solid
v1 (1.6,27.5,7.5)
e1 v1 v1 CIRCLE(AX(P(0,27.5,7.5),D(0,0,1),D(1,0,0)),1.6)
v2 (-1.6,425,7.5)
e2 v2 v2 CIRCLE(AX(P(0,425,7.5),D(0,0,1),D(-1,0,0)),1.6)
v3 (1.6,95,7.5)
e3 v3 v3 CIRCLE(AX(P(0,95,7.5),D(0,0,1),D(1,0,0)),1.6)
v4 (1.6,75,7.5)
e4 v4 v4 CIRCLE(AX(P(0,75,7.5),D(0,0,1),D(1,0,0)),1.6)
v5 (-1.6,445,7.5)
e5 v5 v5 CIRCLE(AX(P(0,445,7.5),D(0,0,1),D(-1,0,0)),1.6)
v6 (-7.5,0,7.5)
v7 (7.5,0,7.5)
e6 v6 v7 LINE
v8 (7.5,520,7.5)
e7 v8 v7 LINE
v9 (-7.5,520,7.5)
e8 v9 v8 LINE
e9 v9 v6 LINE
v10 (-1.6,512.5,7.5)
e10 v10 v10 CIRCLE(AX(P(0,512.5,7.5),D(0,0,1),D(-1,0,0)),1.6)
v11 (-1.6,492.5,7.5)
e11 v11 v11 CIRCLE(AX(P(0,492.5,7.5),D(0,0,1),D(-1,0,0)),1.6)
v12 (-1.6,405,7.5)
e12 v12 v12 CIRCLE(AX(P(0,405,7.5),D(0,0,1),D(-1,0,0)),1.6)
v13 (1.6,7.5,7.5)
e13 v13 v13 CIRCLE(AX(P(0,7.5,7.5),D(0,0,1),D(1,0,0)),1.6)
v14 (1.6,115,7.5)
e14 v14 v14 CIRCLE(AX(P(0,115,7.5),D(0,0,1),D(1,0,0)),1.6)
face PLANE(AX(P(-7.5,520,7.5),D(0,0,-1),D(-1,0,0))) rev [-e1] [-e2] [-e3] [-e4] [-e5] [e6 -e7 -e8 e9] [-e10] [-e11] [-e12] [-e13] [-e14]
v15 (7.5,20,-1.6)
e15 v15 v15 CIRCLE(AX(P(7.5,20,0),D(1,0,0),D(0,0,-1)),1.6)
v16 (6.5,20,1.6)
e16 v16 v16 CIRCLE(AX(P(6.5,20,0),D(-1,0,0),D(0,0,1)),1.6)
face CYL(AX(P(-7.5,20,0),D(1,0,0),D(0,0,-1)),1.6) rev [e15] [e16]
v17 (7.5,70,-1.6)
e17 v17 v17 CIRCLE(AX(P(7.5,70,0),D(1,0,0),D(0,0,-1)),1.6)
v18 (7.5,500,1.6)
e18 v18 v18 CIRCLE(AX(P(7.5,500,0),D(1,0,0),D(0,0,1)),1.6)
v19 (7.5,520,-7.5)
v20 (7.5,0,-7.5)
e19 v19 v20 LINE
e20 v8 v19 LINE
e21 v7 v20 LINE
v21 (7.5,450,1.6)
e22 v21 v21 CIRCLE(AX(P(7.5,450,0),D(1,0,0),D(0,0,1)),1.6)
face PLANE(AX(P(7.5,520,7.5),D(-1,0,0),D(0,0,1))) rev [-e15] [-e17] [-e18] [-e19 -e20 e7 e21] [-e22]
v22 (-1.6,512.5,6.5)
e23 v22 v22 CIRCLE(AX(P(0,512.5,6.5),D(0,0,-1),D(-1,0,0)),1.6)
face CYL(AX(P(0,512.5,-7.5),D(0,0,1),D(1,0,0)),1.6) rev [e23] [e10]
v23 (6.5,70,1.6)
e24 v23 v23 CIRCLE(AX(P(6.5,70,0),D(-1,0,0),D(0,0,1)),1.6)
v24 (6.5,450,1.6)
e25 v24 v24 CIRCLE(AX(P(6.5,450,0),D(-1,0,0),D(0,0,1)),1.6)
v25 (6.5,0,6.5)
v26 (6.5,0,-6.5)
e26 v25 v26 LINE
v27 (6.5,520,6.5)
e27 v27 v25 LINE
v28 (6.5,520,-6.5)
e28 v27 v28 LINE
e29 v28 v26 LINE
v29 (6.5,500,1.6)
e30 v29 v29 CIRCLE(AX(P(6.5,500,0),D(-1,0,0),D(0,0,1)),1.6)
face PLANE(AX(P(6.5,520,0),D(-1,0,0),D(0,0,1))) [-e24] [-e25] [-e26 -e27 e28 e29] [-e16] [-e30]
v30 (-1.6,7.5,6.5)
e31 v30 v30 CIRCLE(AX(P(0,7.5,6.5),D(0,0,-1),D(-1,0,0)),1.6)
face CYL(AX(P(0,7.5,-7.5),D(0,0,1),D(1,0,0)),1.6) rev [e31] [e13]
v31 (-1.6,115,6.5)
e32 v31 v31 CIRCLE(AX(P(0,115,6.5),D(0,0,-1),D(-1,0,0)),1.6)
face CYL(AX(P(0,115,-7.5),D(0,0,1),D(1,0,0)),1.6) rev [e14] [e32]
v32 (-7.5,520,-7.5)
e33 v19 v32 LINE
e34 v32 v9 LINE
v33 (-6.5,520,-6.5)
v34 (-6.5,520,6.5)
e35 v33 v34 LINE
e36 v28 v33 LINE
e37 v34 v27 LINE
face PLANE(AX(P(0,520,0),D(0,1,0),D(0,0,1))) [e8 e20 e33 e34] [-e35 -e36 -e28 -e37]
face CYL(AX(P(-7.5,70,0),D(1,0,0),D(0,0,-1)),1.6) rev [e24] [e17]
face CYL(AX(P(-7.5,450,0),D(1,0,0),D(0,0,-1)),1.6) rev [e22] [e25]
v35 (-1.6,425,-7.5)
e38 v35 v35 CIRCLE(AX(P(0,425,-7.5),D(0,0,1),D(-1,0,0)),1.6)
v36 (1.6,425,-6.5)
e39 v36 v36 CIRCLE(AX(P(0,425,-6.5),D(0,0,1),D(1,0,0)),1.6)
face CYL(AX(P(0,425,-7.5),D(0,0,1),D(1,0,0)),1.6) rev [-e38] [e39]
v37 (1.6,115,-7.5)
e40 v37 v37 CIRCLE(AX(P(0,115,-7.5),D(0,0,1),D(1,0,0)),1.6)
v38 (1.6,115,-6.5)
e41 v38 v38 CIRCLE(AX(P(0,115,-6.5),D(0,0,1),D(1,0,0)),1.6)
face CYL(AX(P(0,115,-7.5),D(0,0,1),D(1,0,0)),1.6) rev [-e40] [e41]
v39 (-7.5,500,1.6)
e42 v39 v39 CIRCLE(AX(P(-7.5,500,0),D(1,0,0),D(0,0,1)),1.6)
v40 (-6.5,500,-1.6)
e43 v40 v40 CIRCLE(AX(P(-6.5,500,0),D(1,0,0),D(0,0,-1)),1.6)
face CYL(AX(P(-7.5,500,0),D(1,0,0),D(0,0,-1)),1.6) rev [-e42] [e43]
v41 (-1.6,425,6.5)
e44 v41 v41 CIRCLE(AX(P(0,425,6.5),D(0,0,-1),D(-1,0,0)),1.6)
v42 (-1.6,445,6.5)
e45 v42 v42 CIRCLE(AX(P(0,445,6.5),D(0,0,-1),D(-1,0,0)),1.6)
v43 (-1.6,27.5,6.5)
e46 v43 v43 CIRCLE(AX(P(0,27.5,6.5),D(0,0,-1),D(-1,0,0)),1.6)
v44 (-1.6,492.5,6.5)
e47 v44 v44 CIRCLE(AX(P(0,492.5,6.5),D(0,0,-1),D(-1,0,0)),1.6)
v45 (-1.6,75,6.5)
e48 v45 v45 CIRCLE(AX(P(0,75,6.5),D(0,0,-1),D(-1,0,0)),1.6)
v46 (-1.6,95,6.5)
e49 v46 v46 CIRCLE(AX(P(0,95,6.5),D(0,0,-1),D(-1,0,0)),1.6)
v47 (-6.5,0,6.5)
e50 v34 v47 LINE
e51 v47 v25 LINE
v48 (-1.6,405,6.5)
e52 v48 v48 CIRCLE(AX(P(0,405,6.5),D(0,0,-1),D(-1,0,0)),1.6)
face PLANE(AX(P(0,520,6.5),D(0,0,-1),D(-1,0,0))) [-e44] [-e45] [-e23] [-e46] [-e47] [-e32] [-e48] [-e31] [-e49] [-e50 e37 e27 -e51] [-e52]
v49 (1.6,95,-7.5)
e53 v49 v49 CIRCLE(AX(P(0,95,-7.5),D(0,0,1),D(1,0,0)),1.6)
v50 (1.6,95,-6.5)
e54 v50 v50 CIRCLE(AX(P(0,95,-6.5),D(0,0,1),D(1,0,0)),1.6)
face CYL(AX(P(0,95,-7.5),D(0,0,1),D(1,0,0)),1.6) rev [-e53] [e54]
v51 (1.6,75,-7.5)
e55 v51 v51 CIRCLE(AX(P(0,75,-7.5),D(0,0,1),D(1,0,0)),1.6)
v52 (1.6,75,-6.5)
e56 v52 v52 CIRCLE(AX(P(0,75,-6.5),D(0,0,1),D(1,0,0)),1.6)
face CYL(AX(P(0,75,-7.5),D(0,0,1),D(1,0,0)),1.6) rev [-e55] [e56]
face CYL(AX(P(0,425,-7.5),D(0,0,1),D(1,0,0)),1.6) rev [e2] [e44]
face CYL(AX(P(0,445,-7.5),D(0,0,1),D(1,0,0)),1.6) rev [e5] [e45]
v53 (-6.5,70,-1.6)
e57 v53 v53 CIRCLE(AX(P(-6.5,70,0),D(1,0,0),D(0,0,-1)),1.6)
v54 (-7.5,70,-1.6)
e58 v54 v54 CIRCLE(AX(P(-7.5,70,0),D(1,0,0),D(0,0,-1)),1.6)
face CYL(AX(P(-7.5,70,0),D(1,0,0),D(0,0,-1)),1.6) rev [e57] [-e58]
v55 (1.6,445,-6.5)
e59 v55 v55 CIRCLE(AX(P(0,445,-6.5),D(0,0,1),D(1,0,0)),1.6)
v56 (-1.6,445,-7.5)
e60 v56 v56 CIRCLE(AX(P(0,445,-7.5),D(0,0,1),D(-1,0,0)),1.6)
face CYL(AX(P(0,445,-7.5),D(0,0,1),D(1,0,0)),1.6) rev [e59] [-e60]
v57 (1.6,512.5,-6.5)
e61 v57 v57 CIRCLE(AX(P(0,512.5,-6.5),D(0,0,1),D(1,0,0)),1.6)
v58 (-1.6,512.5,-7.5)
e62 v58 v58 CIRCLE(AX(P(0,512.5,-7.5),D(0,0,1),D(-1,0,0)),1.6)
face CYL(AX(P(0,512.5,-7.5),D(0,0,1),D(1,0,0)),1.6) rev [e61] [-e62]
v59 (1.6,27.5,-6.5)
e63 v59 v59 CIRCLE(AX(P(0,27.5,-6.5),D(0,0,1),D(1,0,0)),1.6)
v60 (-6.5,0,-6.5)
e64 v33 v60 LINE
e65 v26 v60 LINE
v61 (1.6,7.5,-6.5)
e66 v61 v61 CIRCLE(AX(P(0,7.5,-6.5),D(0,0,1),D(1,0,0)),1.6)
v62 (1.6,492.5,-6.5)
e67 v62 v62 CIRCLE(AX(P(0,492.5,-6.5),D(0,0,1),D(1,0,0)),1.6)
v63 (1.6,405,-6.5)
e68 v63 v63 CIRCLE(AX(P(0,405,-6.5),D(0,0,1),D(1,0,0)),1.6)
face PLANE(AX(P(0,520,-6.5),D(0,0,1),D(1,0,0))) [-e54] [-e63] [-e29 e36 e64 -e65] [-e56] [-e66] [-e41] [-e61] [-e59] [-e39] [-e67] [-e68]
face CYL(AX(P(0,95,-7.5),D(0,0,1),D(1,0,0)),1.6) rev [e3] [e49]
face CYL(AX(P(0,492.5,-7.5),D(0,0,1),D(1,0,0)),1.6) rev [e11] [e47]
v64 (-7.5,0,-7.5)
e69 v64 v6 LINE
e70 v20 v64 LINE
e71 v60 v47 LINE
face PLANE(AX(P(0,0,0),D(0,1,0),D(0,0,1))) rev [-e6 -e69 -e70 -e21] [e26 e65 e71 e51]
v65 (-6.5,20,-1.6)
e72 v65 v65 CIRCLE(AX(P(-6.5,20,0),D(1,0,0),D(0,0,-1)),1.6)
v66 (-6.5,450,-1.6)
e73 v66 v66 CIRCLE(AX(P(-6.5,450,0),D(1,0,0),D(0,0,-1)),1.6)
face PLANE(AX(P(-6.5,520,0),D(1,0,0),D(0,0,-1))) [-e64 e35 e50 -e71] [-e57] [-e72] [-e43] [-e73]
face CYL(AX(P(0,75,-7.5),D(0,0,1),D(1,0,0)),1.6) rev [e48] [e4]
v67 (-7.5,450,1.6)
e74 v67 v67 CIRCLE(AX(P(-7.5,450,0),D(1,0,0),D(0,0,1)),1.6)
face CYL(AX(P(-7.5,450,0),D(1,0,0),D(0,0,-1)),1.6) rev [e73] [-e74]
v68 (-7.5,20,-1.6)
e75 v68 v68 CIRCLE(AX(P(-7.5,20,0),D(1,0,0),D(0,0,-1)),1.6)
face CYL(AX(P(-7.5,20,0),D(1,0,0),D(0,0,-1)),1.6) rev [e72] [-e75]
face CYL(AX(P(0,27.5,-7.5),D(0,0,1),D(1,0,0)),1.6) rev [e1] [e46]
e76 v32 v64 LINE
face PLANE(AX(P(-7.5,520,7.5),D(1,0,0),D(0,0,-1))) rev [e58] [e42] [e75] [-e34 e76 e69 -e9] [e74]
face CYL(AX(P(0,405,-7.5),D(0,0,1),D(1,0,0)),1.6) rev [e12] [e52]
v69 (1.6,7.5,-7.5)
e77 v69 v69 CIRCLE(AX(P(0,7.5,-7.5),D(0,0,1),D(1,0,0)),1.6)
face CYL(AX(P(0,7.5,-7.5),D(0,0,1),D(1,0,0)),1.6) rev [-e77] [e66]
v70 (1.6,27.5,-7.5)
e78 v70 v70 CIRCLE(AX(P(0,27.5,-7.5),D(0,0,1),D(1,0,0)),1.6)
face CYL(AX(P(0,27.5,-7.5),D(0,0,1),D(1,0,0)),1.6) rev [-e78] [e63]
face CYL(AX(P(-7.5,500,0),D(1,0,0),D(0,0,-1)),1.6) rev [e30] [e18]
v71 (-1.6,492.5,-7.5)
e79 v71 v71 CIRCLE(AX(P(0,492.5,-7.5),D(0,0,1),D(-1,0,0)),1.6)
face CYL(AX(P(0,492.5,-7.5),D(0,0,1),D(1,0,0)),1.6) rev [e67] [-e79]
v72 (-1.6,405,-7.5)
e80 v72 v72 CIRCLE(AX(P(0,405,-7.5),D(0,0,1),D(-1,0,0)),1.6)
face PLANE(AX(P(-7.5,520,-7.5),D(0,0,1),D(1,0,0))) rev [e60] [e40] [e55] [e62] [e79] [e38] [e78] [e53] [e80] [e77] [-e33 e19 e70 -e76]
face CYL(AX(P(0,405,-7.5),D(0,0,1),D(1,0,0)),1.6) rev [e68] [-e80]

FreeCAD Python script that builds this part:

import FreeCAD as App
import Part
import Sketcher

doc = App.newDocument("Part")
body = doc.addObject("PartDesign::Body", "Body")

# Sketch on XZ plane
sketch1 = body.newObject("Sketcher::SketchObject", "Sketch")
sketch1.AttachmentSupport = (doc.getObject("XZ_Plane"), [""])
sketch1.MapMode = "FlatFace"
sketch1.addGeometry([
    Part.LineSegment(App.Vector(-8, -8, 0), App.Vector(-8, 8, 0)),  # 0
    Part.LineSegment(App.Vector(-8, 8, 0), App.Vector(8, 8, 0)),  # 1
    Part.LineSegment(App.Vector(8, 8, 0), App.Vector(8, -8, 0)),  # 2
    Part.LineSegment(App.Vector(8, -8, 0), App.Vector(-8, -8, 0)),  # 3
    Part.LineSegment(App.Vector(6, 6, 0), App.Vector(-6, 6, 0)),  # 4
    Part.LineSegment(App.Vector(-6, 6, 0), App.Vector(-6, -6, 0)),  # 5
    Part.LineSegment(App.Vector(-6, -6, 0), App.Vector(6, -6, 0)),  # 6
    Part.LineSegment(App.Vector(6, -6, 0), App.Vector(6, 6, 0)),  # 7
], False)
sketch1.addConstraint([
    Sketcher.Constraint("Coincident", 0, 2, 1, 1),
    Sketcher.Constraint("Coincident", 1, 2, 2, 1),
    Sketcher.Constraint("Coincident", 2, 2, 3, 1),
    Sketcher.Constraint("Coincident", 3, 2, 0, 1),
    Sketcher.Constraint("Coincident", 4, 2, 5, 1),
    Sketcher.Constraint("Coincident", 5, 2, 6, 1),
    Sketcher.Constraint("Coincident", 6, 2, 7, 1),
    Sketcher.Constraint("Coincident", 7, 2, 4, 1),
    Sketcher.Constraint("Vertical", 0),
    Sketcher.Constraint("Horizontal", 1),
    Sketcher.Constraint("Vertical", 2),
    Sketcher.Constraint("Horizontal", 3),
    Sketcher.Constraint("Horizontal", 4),
    Sketcher.Constraint("Vertical", 5),
    Sketcher.Constraint("Horizontal", 6),
    Sketcher.Constraint("Vertical", 7),
    Sketcher.Constraint("Symmetric", 0, 2, 2, 2, -1, 1),
    Sketcher.Constraint("Symmetric", 4, 2, 6, 2, -1, 1),
    Sketcher.Constraint("Equal", 3, 0),
    Sketcher.Constraint("Equal", 6, 5),
    Sketcher.Constraint("DistanceX", 1, 1, 1, 2, 15.0),
    Sketcher.Constraint("DistanceX", 4, 2, 4, 1, 13.0),
])
pad1 = body.newObject("PartDesign::Pad", "Pad")
pad1.Profile = sketch1
pad1.Length = 520
pad1.Reversed = True

# Sketch on XY plane
sketch2 = body.newObject("Sketcher::SketchObject", "Sketch001")
sketch2.AttachmentSupport = (doc.getObject("XY_Plane"), [""])
sketch2.MapMode = "FlatFace"
sketch2.AttachmentOffset = App.Placement(App.Vector(0, 0, 7.5), App.Rotation())
sketch2.addGeometry([
    Part.Circle(App.Vector(0, 7.5, 0), App.Vector(0, 0, 1), 1.6),  # 0
    Part.Circle(App.Vector(0, 27.5, 0), App.Vector(0, 0, 1), 1.6),  # 1
    Part.Circle(App.Vector(0, 75, 0), App.Vector(0, 0, 1), 1.6),  # 2
    Part.Circle(App.Vector(0, 95, 0), App.Vector(0, 0, 1), 1.6),  # 3
    Part.Circle(App.Vector(0, 115, 0), App.Vector(0, 0, 1), 1.6),  # 4
    Part.Circle(App.Vector(0, 405, 0), App.Vector(0, 0, 1), 1.6),  # 5
    Part.Circle(App.Vector(0, 425, 0), App.Vector(0, 0, 1), 1.6),  # 6
    Part.Circle(App.Vector(0, 445, 0), App.Vector(0, 0, 1), 1.6),  # 7
    Part.Circle(App.Vector(0, 492.5, 0), App.Vector(0, 0, 1), 1.6),  # 8
    Part.Circle(App.Vector(0, 512.5, 0), App.Vector(0, 0, 1), 1.6),  # 9
], False)
sketch2.addConstraint([
    Sketcher.Constraint("Equal", 0, 1),
    Sketcher.Constraint("Equal", 1, 2),
    Sketcher.Constraint("Equal", 2, 3),
    Sketcher.Constraint("Equal", 3, 4),
    Sketcher.Constraint("Equal", 4, 5),
    Sketcher.Constraint("Equal", 5, 6),
    Sketcher.Constraint("Equal", 6, 7),
    Sketcher.Constraint("Equal", 7, 8),
    Sketcher.Constraint("Equal", 8, 9),
    Sketcher.Constraint("PointOnObject", 0, 3, -2),
    Sketcher.Constraint("PointOnObject", 1, 3, -2),
    Sketcher.Constraint("PointOnObject", 2, 3, -2),
    Sketcher.Constraint("PointOnObject", 3, 3, -2),
    Sketcher.Constraint("PointOnObject", 4, 3, -2),
    Sketcher.Constraint("PointOnObject", 5, 3, -2),
    Sketcher.Constraint("PointOnObject", 6, 3, -2),
    Sketcher.Constraint("PointOnObject", 7, 3, -2),
    Sketcher.Constraint("PointOnObject", 8, 3, -2),
    Sketcher.Constraint("PointOnObject", 9, 3, -2),
    Sketcher.Constraint("Diameter", 0, 3.2),
    Sketcher.Constraint("DistanceY", -1, 1, 2, 3, 75.0),
    Sketcher.Constraint("DistanceY", -1, 1, 3, 3, 95.0),
    Sketcher.Constraint("DistanceY", -1, 1, 4, 3, 115.0),
    Sketcher.Constraint("DistanceY", -1, 1, 5, 3, 405.0),
    Sketcher.Constraint("DistanceY", -1, 1, 6, 3, 425.0),
    Sketcher.Constraint("DistanceY", -1, 1, 7, 3, 445.0),
    Sketcher.Constraint("DistanceY", 0, 3, 1, 3, 20.0),
    Sketcher.Constraint("DistanceY", 8, 3, 9, 3, 20.0),
    Sketcher.Constraint("DistanceY", -1, 1, 0, 3, 7.5),
    Sketcher.Constraint("DistanceY", -1, 1, 8, 3, 492.5),
])
pocket1 = body.newObject("PartDesign::Pocket", "Pocket")
pocket1.Profile = sketch2
pocket1.Type = "ThroughAll"

# Sketch on YZ plane
sketch3 = body.newObject("Sketcher::SketchObject", "Sketch002")
sketch3.AttachmentSupport = (doc.getObject("YZ_Plane"), [""])
sketch3.MapMode = "FlatFace"
sketch3.AttachmentOffset = App.Placement(App.Vector(0, 0, 7.5), App.Rotation())
sketch3.addGeometry([
    Part.Circle(App.Vector(20, 0, 0), App.Vector(0, 0, 1), 1.6),
    Part.Circle(App.Vector(70, 0, 0), App.Vector(0, 0, 1), 1.6),
    Part.Circle(App.Vector(450, 0, 0), App.Vector(0, 0, 1), 1.6),
    Part.Circle(App.Vector(500, 0, 0), App.Vector(0, 0, 1), 1.6),
], False)
sketch3.addConstraint([
    Sketcher.Constraint("Equal", 0, 1),
    Sketcher.Constraint("Equal", 1, 2),
    Sketcher.Constraint("Equal", 2, 3),
    Sketcher.Constraint("PointOnObject", 0, 3, -1),
    Sketcher.Constraint("PointOnObject", 1, 3, -1),
    Sketcher.Constraint("PointOnObject", 2, 3, -1),
    Sketcher.Constraint("PointOnObject", 3, 3, -1),
    Sketcher.Constraint("Diameter", 0, 3.2),
    Sketcher.Constraint("DistanceX", -1, 1, 0, 3, 20.0),
    Sketcher.Constraint("DistanceX", -1, 1, 1, 3, 70.0),
    Sketcher.Constraint("DistanceX", -1, 1, 2, 3, 450.0),
    Sketcher.Constraint("DistanceX", -1, 1, 3, 3, 500.0),
])
pocket2 = body.newObject("PartDesign::Pocket", "Pocket001")
pocket2.Profile = sketch3
pocket2.Type = "ThroughAll"

doc.recompute()
